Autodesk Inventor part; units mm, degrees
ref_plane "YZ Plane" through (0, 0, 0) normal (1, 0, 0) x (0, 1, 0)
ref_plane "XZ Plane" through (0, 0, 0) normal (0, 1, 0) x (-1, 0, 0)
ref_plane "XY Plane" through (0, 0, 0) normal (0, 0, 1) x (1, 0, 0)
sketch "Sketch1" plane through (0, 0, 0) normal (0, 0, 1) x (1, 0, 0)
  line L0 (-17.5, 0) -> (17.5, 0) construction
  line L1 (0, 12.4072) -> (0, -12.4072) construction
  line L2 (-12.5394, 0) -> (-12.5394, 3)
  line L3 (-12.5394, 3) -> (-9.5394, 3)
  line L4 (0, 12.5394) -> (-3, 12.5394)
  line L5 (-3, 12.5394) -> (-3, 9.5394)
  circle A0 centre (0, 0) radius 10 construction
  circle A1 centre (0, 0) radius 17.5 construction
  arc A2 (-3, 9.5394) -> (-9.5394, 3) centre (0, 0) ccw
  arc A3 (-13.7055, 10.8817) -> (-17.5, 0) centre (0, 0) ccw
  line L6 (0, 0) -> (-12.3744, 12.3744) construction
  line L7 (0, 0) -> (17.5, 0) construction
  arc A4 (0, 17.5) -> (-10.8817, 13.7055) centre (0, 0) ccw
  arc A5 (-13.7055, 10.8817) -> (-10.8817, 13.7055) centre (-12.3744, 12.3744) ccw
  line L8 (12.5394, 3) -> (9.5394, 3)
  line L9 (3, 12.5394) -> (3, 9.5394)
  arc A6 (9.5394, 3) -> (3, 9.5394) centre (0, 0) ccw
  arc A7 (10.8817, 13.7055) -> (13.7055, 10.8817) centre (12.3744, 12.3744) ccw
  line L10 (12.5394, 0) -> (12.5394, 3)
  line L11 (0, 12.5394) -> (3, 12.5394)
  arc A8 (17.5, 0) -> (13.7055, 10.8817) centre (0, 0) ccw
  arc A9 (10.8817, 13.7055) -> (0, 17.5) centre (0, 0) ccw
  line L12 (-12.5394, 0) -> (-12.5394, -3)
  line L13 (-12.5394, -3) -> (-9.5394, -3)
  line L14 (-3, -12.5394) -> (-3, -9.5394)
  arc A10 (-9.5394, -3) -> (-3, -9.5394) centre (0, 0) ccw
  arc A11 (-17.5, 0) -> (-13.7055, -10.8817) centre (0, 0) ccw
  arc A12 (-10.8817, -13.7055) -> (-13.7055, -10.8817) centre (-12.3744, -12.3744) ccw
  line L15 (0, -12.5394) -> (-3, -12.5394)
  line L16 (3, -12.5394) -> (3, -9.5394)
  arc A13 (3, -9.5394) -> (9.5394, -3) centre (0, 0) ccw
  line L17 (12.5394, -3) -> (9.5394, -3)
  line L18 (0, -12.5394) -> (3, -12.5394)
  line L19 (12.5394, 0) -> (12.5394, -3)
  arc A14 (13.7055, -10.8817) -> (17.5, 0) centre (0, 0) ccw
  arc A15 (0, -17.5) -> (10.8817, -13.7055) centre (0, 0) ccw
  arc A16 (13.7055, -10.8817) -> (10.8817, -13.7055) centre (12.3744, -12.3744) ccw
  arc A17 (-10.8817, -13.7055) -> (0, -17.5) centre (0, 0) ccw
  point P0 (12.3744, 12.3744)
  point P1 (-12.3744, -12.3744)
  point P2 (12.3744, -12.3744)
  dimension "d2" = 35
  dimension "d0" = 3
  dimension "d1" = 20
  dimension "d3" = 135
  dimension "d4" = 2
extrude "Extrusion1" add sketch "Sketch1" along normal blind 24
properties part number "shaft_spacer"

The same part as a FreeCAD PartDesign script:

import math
import FreeCAD as App
import Part
import Sketcher

doc = App.newDocument("Part")
body = doc.addObject("PartDesign::Body", "Body")

# Sketch on XY plane
sketch1 = doc.addObject("Sketcher::SketchObject", "Sketch")
body.addObject(sketch1)
sketch1.AttachmentSupport = (doc.XY_Plane, [""])
sketch1.MapMode = "FlatFace"
sketch1.addGeometry(Part.ArcOfCircle(Part.Circle(App.Vector(-12.4, 12.4, 0), App.Vector(0, 0, 1), 2), math.radians(-132), math.radians(42)), False)
sketch1.addGeometry(Part.ArcOfCircle(Part.Circle(App.Vector(0, 0, 0), App.Vector(0, 0, 1), 17.5), math.radians(142), math.radians(180)), False)
sketch1.addGeometry(Part.ArcOfCircle(Part.Circle(App.Vector(0, 0, 0), App.Vector(0, 0, 1), 17.5), math.radians(180), math.radians(218)), False)
sketch1.addGeometry(Part.ArcOfCircle(Part.Circle(App.Vector(-12.4, -12.4, 0), App.Vector(0, 0, 1), 2), math.radians(-42), math.radians(132)), False)
sketch1.addGeometry(Part.ArcOfCircle(Part.Circle(App.Vector(0, 0, 0), App.Vector(0, 0, 1), 17.5), math.radians(-128), math.radians(-90)), False)
sketch1.addGeometry(Part.ArcOfCircle(Part.Circle(App.Vector(0, 0, 0), App.Vector(0, 0, 1), 17.5), math.radians(-90), math.radians(-52)), False)
sketch1.addGeometry(Part.ArcOfCircle(Part.Circle(App.Vector(12.4, -12.4, 0), App.Vector(0, 0, 1), 2), math.radians(48), math.radians(222)), False)
sketch1.addGeometry(Part.ArcOfCircle(Part.Circle(App.Vector(0, 0, 0), App.Vector(0, 0, 1), 17.5), math.radians(-38), math.radians(0)), False)
sketch1.addGeometry(Part.ArcOfCircle(Part.Circle(App.Vector(0, 0, 0), App.Vector(0, 0, 1), 17.5), math.radians(0), math.radians(38)), False)
sketch1.addGeometry(Part.ArcOfCircle(Part.Circle(App.Vector(12.4, 12.4, 0), App.Vector(0, 0, 1), 2), math.radians(138), math.radians(312)), False)
sketch1.addGeometry(Part.ArcOfCircle(Part.Circle(App.Vector(0, 0, 0), App.Vector(0, 0, 1), 17.5), math.radians(52), math.radians(90)), False)
sketch1.addGeometry(Part.ArcOfCircle(Part.Circle(App.Vector(0, 0, 0), App.Vector(0, 0, 1), 17.5), math.radians(90), math.radians(128)), False)
sketch1.addGeometry(Part.LineSegment(App.Vector(-12.5, -3, 0), App.Vector(-12.5, 3, 0)), False)
sketch1.addGeometry(Part.LineSegment(App.Vector(-12.5, 3, 0), App.Vector(-9.5, 3, 0)), False)
sketch1.addGeometry(Part.ArcOfCircle(Part.Circle(App.Vector(0, 0, 0), App.Vector(0, 0, 1), 10), math.radians(107), math.radians(163)), False)
sketch1.addGeometry(Part.LineSegment(App.Vector(-3, 9.5, 0), App.Vector(-3, 12.5, 0)), False)
sketch1.addGeometry(Part.LineSegment(App.Vector(-3, 12.5, 0), App.Vector(3, 12.5, 0)), False)
sketch1.addGeometry(Part.LineSegment(App.Vector(3, 12.5, 0), App.Vector(3, 9.5, 0)), False)
sketch1.addGeometry(Part.ArcOfCircle(Part.Circle(App.Vector(0, 0, 0), App.Vector(0, 0, 1), 10), math.radians(17), math.radians(73)), False)
sketch1.addGeometry(Part.LineSegment(App.Vector(9.5, 3, 0), App.Vector(12.5, 3, 0)), False)
sketch1.addGeometry(Part.LineSegment(App.Vector(12.5, 3, 0), App.Vector(12.5, -3, 0)), False)
sketch1.addGeometry(Part.LineSegment(App.Vector(12.5, -3, 0), App.Vector(9.5, -3, 0)), False)
sketch1.addGeometry(Part.ArcOfCircle(Part.Circle(App.Vector(0, 0, 0), App.Vector(0, 0, 1), 10), math.radians(-73), math.radians(-17)), False)
sketch1.addGeometry(Part.LineSegment(App.Vector(3, -9.5, 0), App.Vector(3, -12.5, 0)), False)
sketch1.addGeometry(Part.LineSegment(App.Vector(3, -12.5, 0), App.Vector(-3, -12.5, 0)), False)
sketch1.addGeometry(Part.LineSegment(App.Vector(-3, -12.5, 0), App.Vector(-3, -9.5, 0)), False)
sketch1.addGeometry(Part.ArcOfCircle(Part.Circle(App.Vector(0, 0, 0), App.Vector(0, 0, 1), 10), math.radians(-163), math.radians(-107)), False)
sketch1.addGeometry(Part.LineSegment(App.Vector(-9.5, -3, 0), App.Vector(-12.5, -3, 0)), False)
sketch1.addConstraint(Sketcher.Constraint("Coincident", 0, 1, 1, 1))
sketch1.addConstraint(Sketcher.Constraint("Tangent", 1, 2, 2, 1))
sketch1.addConstraint(Sketcher.Constraint("Coincident", 2, 2, 3, 2))
sketch1.addConstraint(Sketcher.Constraint("Coincident", 3, 1, 4, 1))
sketch1.addConstraint(Sketcher.Constraint("Tangent", 4, 2, 5, 1))
sketch1.addConstraint(Sketcher.Constraint("Coincident", 5, 2, 6, 2))
sketch1.addConstraint(Sketcher.Constraint("Coincident", 6, 1, 7, 1))
sketch1.addConstraint(Sketcher.Constraint("Tangent", 7, 2, 8, 1))
sketch1.addConstraint(Sketcher.Constraint("Coincident", 8, 2, 9, 2))
sketch1.addConstraint(Sketcher.Constraint("Coincident", 9, 1, 10, 1))
sketch1.addConstraint(Sketcher.Constraint("Tangent", 10, 2, 11, 1))
sketch1.addConstraint(Sketcher.Constraint("Coincident", 11, 2, 0, 2))
sketch1.addConstraint(Sketcher.Constraint("Coincident", 12, 2, 13, 1))
sketch1.addConstraint(Sketcher.Constraint("Coincident", 13, 2, 14, 2))
sketch1.addConstraint(Sketcher.Constraint("Coincident", 14, 1, 15, 1))
sketch1.addConstraint(Sketcher.Constraint("Coincident", 15, 2, 16, 1))
sketch1.addConstraint(Sketcher.Constraint("Coincident", 16, 2, 17, 1))
sketch1.addConstraint(Sketcher.Constraint("Coincident", 17, 2, 18, 2))
sketch1.addConstraint(Sketcher.Constraint("Coincident", 18, 1, 19, 1))
sketch1.addConstraint(Sketcher.Constraint("Coincident", 19, 2, 20, 1))
sketch1.addConstraint(Sketcher.Constraint("Coincident", 20, 2, 21, 1))
sketch1.addConstraint(Sketcher.Constraint("Coincident", 21, 2, 22, 2))
sketch1.addConstraint(Sketcher.Constraint("Coincident", 22, 1, 23, 1))
sketch1.addConstraint(Sketcher.Constraint("Coincident", 23, 2, 24, 1))
sketch1.addConstraint(Sketcher.Constraint("Coincident", 24, 2, 25, 1))
sketch1.addConstraint(Sketcher.Constraint("Coincident", 25, 2, 26, 2))
sketch1.addConstraint(Sketcher.Constraint("Coincident", 26, 1, 27, 1))
sketch1.addConstraint(Sketcher.Constraint("Coincident", 27, 2, 12, 1))
sketch1.addConstraint(Sketcher.Constraint("Vertical", 12))
sketch1.addConstraint(Sketcher.Constraint("Horizontal", 13))
sketch1.addConstraint(Sketcher.Constraint("Vertical", 15))
sketch1.addConstraint(Sketcher.Constraint("Horizontal", 16))
sketch1.addConstraint(Sketcher.Constraint("Vertical", 17))
sketch1.addConstraint(Sketcher.Constraint("Horizontal", 19))
sketch1.addConstraint(Sketcher.Constraint("Vertical", 20))
sketch1.addConstraint(Sketcher.Constraint("Horizontal", 21))
sketch1.addConstraint(Sketcher.Constraint("Vertical", 23))
sketch1.addConstraint(Sketcher.Constraint("Horizontal", 24))
sketch1.addConstraint(Sketcher.Constraint("Vertical", 25))
sketch1.addConstraint(Sketcher.Constraint("Horizontal", 27))
sketch1.addConstraint(Sketcher.Constraint("Coincident", 1, 3, -1, 1))
sketch1.addConstraint(Sketcher.Constraint("Coincident", 4, 3, -1, 1))
sketch1.addConstraint(Sketcher.Constraint("Coincident", 7, 3, -1, 1))
sketch1.addConstraint(Sketcher.Constraint("Coincident", 10, 3, -1, 1))
sketch1.addConstraint(Sketcher.Constraint("Coincident", 14, 3, -1, 1))
sketch1.addConstraint(Sketcher.Constraint("Coincident", 18, 3, -1, 1))
sketch1.addConstraint(Sketcher.Constraint("Coincident", 22, 3, -1, 1))
sketch1.addConstraint(Sketcher.Constraint("Coincident", 26, 3, -1, 1))
sketch1.addConstraint(Sketcher.Constraint("Equal", 1, 2))
sketch1.addConstraint(Sketcher.Constraint("Equal", 0, 3))
sketch1.addConstraint(Sketcher.Constraint("Equal", 2, 4))
sketch1.addConstraint(Sketcher.Constraint("Equal", 4, 5))
sketch1.addConstraint(Sketcher.Constraint("Equal", 3, 6))
sketch1.addConstraint(Sketcher.Constraint("Equal", 5, 7))
sketch1.addConstraint(Sketcher.Constraint("Equal", 7, 8))
sketch1.addConstraint(Sketcher.Constraint("Equal", 6, 9))
sketch1.addConstraint(Sketcher.Constraint("Equal", 8, 10))
sketch1.addConstraint(Sketcher.Constraint("Equal", 10, 11))
sketch1.addConstraint(Sketcher.Constraint("Equal", 14, 18))
sketch1.addConstraint(Sketcher.Constraint("Equal", 18, 22))
sketch1.addConstraint(Sketcher.Constraint("Equal", 22, 26))
sketch1.addConstraint(Sketcher.Constraint("Symmetric", 0, 3, 6, 3, -1, 1))
sketch1.addConstraint(Sketcher.Constraint("Symmetric", 3, 3, 9, 3, -1, 1))
sketch1.addConstraint(Sketcher.Constraint("Symmetric", 12, 2, 20, 2, -1, 1))
sketch1.addConstraint(Sketcher.Constraint("Symmetric", 15, 2, 23, 2, -1, 1))
sketch1.addConstraint(Sketcher.Constraint("Symmetric", 3, 3, 6, 3, -2))
sketch1.addConstraint(Sketcher.Constraint("PointOnObject", 1, 2, -1))
sketch1.addConstraint(Sketcher.Constraint("PointOnObject", 4, 2, -2))
sketch1.addConstraint(Sketcher.Constraint("PointOnObject", 7, 2, -1))
sketch1.addConstraint(Sketcher.Constraint("PointOnObject", 10, 2, -2))
sketch1.addConstraint(Sketcher.Constraint("Horizontal", 14, 1, 17, 2))
sketch1.addConstraint(Sketcher.Constraint("Horizontal", 13, 2, 18, 1))
sketch1.addConstraint(Sketcher.Constraint("Horizontal", 22, 1, 25, 2))
sketch1.addConstraint(Sketcher.Constraint("Horizontal", 21, 2, 26, 1))
sketch1.addConstraint(Sketcher.Constraint("Equal", 24, 12))
sketch1.addConstraint(Sketcher.Constraint("Equal", 27, 15))
sketch1.addConstraint(Sketcher.Constraint("Radius", 0, 2.0))
sketch1.addConstraint(Sketcher.Constraint("Radius", 14, 10.0))
sketch1.addConstraint(Sketcher.Constraint("Radius", 1, 17.5))
sketch1.addConstraint(Sketcher.Constraint("DistanceX", 13, 1, 13, 2, 3.0))
sketch1.addConstraint(Sketcher.Constraint("DistanceY", -1, 1, 12, 2, 3.0))
sketch1.addConstraint(Sketcher.Constraint("DistanceX", 0, 1, 0, 3, 1.331))
sketch1.addConstraint(Sketcher.Constraint("DistanceY", 3, 1, 3, 3, 1.331))
pad1 = doc.addObject("PartDesign::Pad", "Pad")
body.addObject(pad1)
pad1.Profile = sketch1
pad1.Length = 24

doc.recompute()
